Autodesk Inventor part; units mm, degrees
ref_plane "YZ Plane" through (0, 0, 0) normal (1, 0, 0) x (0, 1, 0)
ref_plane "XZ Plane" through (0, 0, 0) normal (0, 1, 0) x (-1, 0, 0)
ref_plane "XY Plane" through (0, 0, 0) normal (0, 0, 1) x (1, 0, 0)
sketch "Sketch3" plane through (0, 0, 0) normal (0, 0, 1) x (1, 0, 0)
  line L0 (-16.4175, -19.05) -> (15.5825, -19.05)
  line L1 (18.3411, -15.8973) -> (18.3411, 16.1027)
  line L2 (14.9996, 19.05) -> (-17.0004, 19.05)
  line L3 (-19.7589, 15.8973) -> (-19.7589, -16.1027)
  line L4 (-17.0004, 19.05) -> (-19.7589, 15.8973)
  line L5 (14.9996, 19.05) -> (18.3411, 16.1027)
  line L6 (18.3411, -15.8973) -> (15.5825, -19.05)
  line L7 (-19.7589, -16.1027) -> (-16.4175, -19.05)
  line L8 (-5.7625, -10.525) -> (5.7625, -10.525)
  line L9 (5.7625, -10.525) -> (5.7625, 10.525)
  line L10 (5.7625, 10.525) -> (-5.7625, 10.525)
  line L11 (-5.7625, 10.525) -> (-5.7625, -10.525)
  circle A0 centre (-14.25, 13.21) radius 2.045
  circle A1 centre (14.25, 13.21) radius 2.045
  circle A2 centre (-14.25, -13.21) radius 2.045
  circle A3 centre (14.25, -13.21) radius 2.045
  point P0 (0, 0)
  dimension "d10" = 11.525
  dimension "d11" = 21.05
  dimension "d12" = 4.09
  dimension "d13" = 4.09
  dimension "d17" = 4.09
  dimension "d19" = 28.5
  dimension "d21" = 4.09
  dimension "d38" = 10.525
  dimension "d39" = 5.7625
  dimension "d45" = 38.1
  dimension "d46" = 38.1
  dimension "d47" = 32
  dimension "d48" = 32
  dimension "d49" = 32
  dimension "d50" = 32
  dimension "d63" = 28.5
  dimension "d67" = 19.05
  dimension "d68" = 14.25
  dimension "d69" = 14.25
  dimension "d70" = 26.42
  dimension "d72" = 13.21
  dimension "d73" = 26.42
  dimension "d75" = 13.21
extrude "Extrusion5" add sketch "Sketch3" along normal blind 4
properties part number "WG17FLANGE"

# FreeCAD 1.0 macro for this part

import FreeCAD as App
import Part
import Sketcher

V = App.Vector
Q = App.Units.Quantity

doc = App.newDocument("Part")
body = doc.addObject("PartDesign::Body", "Body")

sketch1 = body.newObject("Sketcher::SketchObject", "Sketch")
sketch1.AttachmentSupport = (doc.getObject("XY_Plane"), [""])
sketch1.MapMode = "FlatFace"
sketch1.addGeometry(Part.LineSegment(V(-19.8, -16.1, 0), V(-16.4, -19.1, 0)), False)
sketch1.addGeometry(Part.LineSegment(V(-16.4, -19.1, 0), V(15.6, -19.1, 0)), False)
sketch1.addGeometry(Part.LineSegment(V(15.6, -19.1, 0), V(18.3, -15.9, 0)), False)
sketch1.addGeometry(Part.LineSegment(V(18.3, -15.9, 0), V(18.3, 16.1, 0)), False)
sketch1.addGeometry(Part.LineSegment(V(18.3, 16.1, 0), V(15, 19.1, 0)), False)
sketch1.addGeometry(Part.LineSegment(V(15, 19.1, 0), V(-17, 19.1, 0)), False)
sketch1.addGeometry(Part.LineSegment(V(-17, 19.1, 0), V(-19.8, 15.9, 0)), False)
sketch1.addGeometry(Part.LineSegment(V(-19.8, 15.9, 0), V(-19.8, -16.1, 0)), False)
sketch1.addGeometry(Part.Circle(V(-14.2, -13.2, 0), V(0, 0, 1), 2), False)
sketch1.addGeometry(Part.Circle(V(14.2, -13.2, 0), V(0, 0, 1), 2), False)
sketch1.addGeometry(Part.Circle(V(-14.2, 13.2, 0), V(0, 0, 1), 2), False)
sketch1.addGeometry(Part.LineSegment(V(5.8, -10.5, 0), V(-5.8, -10.5, 0)), False)
sketch1.addGeometry(Part.LineSegment(V(-5.8, -10.5, 0), V(-5.8, 10.5, 0)), False)
sketch1.addGeometry(Part.LineSegment(V(-5.8, 10.5, 0), V(5.8, 10.5, 0)), False)
sketch1.addGeometry(Part.LineSegment(V(5.8, 10.5, 0), V(5.8, -10.5, 0)), False)
sketch1.addGeometry(Part.Circle(V(14.2, 13.2, 0), V(0, 0, 1), 2), False)
sketch1.addConstraint(Sketcher.Constraint("Coincident", 0, 2, 1, 1))
sketch1.addConstraint(Sketcher.Constraint("Coincident", 1, 2, 2, 1))
sketch1.addConstraint(Sketcher.Constraint("Coincident", 2, 2, 3, 1))
sketch1.addConstraint(Sketcher.Constraint("Coincident", 3, 2, 4, 1))
sketch1.addConstraint(Sketcher.Constraint("Coincident", 4, 2, 5, 1))
sketch1.addConstraint(Sketcher.Constraint("Coincident", 5, 2, 6, 1))
sketch1.addConstraint(Sketcher.Constraint("Coincident", 6, 2, 7, 1))
sketch1.addConstraint(Sketcher.Constraint("Coincident", 7, 2, 0, 1))
sketch1.addConstraint(Sketcher.Constraint("Coincident", 11, 2, 12, 1))
sketch1.addConstraint(Sketcher.Constraint("Coincident", 12, 2, 13, 1))
sketch1.addConstraint(Sketcher.Constraint("Coincident", 13, 2, 14, 1))
sketch1.addConstraint(Sketcher.Constraint("Coincident", 14, 2, 11, 1))
sketch1.addConstraint(Sketcher.Constraint("Horizontal", 1))
sketch1.addConstraint(Sketcher.Constraint("Vertical", 3))
sketch1.addConstraint(Sketcher.Constraint("Horizontal", 5))
sketch1.addConstraint(Sketcher.Constraint("Vertical", 7))
sketch1.addConstraint(Sketcher.Constraint("Horizontal", 11))
sketch1.addConstraint(Sketcher.Constraint("Vertical", 12))
sketch1.addConstraint(Sketcher.Constraint("Horizontal", 13))
sketch1.addConstraint(Sketcher.Constraint("Vertical", 14))
sketch1.addConstraint(Sketcher.Constraint("Equal", 8, 9))
sketch1.addConstraint(Sketcher.Constraint("Equal", 9, 10))
sketch1.addConstraint(Sketcher.Constraint("Equal", 10, 15))
sketch1.addConstraint(Sketcher.Constraint("Symmetric", 9, 3, 10, 3, -1, 1))
sketch1.addConstraint(Sketcher.Constraint("Symmetric", 8, 3, 15, 3, -1, 1))
sketch1.addConstraint(Sketcher.Constraint("Symmetric", 11, 2, 13, 2, -1, 1))
sketch1.addConstraint(Sketcher.Constraint("Symmetric", 8, 3, 9, 3, -2))
sketch1.addConstraint(Sketcher.Constraint("Parallel", 0, 4))
sketch1.addConstraint(Sketcher.Constraint("Parallel", 2, 6))
sketch1.addConstraint(Sketcher.Constraint("Equal", 1, 5))
sketch1.addConstraint(Sketcher.Constraint("Equal", 5, 3))
sketch1.addConstraint(Sketcher.Constraint("Equal", 3, 7))
sketch1.addConstraint(Sketcher.Constraint("Diameter", 8, Q("4.09 mm")))
sketch1.addConstraint(Sketcher.Constraint("DistanceX", 1, 1, 1, 2, Q("32 mm")))
sketch1.addConstraint(Sketcher.Constraint("DistanceY", 12, 1, 12, 2, Q("21.05 mm")))
sketch1.addConstraint(Sketcher.Constraint("DistanceX", 8, 3, 9, 3, Q("28.5 mm")))
sketch1.addConstraint(Sketcher.Constraint("DistanceX", 11, 2, 11, 1, Q("11.525 mm")))
sketch1.addConstraint(Sketcher.Constraint("DistanceY", 8, 3, -1, 1, Q("13.21 mm")))
sketch1.addConstraint(Sketcher.Constraint("DistanceY", 0, 2, -1, 1, Q("19.05 mm")))
sketch1.addConstraint(Sketcher.Constraint("DistanceY", -1, 1, 4, 2, Q("19.05 mm")))
sketch1.addConstraint(Sketcher.Constraint("DistanceX", 14, 2, 1, 2, Q("9.82 mm")))
sketch1.addConstraint(Sketcher.Constraint("DistanceX", -1, 1, 2, 2, Q("18.341 mm")))
sketch1.addConstraint(Sketcher.Constraint("DistanceX", 6, 2, -1, 1, Q("19.759 mm")))
sketch1.addConstraint(Sketcher.Constraint("Distance", 0, Q("4.4555 mm")))
pad1 = body.newObject("PartDesign::Pad", "Pad")
pad1.Profile = sketch1
pad1.Length = 4

doc.recompute()
